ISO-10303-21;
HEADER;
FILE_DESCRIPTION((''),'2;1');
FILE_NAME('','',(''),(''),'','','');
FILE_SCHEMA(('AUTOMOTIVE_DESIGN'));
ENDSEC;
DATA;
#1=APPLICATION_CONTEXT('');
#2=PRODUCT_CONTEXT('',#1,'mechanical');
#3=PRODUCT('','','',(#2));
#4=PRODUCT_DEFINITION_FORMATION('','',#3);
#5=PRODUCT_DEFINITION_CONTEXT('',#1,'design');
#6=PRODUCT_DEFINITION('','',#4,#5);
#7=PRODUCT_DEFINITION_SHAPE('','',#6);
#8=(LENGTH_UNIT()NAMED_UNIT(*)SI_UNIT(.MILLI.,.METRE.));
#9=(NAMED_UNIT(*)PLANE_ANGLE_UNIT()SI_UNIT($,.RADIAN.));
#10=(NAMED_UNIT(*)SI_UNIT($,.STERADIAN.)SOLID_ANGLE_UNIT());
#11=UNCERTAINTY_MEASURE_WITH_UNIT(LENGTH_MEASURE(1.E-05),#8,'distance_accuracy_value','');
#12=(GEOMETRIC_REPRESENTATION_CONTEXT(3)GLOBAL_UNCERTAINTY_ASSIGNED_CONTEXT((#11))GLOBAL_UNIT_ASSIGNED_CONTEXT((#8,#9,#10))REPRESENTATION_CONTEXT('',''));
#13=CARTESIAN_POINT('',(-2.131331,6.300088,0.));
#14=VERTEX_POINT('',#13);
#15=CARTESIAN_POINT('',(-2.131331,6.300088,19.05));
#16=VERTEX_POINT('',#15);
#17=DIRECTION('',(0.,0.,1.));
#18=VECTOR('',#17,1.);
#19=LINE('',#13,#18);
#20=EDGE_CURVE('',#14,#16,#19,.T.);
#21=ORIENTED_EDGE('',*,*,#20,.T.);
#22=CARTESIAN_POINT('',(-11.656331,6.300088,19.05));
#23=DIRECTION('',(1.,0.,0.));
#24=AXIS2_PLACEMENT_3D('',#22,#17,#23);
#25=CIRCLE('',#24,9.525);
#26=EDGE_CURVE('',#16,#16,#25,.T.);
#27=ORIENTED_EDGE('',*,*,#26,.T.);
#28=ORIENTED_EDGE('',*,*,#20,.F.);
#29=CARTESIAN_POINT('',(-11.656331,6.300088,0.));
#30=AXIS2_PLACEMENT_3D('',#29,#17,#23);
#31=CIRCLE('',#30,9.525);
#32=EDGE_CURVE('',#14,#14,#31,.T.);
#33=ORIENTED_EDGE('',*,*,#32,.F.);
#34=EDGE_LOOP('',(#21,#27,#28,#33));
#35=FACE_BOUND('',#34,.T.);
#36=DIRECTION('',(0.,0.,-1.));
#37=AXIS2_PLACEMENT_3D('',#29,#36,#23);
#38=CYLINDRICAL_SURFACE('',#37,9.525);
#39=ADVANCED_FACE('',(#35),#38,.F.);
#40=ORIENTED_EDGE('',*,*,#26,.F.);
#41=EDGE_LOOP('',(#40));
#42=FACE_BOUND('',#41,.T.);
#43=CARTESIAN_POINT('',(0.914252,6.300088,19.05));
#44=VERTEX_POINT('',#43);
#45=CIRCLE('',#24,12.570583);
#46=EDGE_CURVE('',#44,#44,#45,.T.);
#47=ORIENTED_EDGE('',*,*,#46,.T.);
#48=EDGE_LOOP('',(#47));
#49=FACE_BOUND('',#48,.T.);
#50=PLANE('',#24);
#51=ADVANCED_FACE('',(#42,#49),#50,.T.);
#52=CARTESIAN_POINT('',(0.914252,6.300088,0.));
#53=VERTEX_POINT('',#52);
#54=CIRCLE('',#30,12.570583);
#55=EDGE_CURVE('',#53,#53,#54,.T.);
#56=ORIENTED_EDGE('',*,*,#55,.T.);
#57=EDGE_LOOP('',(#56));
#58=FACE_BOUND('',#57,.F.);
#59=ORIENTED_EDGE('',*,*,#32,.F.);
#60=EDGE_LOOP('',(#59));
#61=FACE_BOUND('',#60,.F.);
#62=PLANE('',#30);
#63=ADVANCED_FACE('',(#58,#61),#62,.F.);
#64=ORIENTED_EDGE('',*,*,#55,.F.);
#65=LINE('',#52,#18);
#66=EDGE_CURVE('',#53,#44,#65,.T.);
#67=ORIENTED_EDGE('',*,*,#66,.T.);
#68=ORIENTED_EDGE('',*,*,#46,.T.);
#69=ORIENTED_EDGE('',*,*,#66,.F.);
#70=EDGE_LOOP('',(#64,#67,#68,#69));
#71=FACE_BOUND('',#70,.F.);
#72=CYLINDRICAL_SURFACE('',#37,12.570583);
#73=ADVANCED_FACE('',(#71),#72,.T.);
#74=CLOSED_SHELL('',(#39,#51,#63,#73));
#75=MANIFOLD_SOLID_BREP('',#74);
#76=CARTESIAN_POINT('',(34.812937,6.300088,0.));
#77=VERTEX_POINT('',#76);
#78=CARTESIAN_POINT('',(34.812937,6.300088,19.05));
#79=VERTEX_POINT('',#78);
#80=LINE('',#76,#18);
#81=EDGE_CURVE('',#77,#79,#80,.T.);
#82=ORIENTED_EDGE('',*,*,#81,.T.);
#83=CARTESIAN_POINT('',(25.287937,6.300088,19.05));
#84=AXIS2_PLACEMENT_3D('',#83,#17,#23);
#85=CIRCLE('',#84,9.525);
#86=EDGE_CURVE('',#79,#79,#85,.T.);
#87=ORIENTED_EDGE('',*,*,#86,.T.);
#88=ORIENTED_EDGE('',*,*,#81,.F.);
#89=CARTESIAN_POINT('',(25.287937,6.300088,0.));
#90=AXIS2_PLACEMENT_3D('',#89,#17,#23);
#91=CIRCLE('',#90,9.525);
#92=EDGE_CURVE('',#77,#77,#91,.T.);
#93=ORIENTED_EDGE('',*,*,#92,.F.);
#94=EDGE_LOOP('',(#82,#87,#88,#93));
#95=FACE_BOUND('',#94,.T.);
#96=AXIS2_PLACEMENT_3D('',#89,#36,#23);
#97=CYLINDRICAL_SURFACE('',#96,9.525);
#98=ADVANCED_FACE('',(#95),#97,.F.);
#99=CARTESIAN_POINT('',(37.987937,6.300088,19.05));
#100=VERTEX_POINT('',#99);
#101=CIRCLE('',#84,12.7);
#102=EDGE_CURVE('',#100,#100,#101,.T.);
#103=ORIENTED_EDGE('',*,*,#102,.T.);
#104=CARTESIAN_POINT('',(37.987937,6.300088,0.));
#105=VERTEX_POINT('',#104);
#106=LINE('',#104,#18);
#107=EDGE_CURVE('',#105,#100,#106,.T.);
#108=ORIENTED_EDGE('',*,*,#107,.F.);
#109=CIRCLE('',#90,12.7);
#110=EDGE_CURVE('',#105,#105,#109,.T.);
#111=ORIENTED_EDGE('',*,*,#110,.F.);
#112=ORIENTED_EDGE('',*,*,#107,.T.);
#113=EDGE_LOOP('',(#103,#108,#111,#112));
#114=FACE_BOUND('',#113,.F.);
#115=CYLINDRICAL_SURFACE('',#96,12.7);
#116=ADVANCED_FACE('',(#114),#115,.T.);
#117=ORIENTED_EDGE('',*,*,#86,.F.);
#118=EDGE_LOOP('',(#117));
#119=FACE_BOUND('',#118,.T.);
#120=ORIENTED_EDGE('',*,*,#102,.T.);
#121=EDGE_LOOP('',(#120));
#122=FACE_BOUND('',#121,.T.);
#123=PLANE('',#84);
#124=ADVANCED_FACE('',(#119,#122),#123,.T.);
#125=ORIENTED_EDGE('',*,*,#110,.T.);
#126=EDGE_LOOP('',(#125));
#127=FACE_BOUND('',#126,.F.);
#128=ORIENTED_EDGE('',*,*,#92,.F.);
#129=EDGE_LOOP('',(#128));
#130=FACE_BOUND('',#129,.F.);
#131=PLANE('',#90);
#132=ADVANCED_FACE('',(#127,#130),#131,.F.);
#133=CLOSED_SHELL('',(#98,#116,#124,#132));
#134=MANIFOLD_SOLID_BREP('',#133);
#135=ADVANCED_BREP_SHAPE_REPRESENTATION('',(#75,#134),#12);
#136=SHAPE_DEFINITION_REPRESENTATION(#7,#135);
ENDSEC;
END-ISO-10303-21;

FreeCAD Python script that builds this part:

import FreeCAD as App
import Part
import Sketcher

V = App.Vector
Q = App.Units.Quantity

doc = App.newDocument("Part")
body = doc.addObject("PartDesign::Body", "Body")
body.AllowCompound = True

sketch1 = body.newObject("Sketcher::SketchObject", "Sketch")
sketch1.AttachmentSupport = (doc.getObject("XY_Plane"), [""])
sketch1.MapMode = "FlatFace"
sketch1.addGeometry(Part.Circle(V(25, 6, 0), V(0, 0, 1), 13), False)
sketch1.addGeometry(Part.Circle(V(25, 6, 0), V(0, 0, 1), 10), False)
sketch1.addGeometry(Part.Circle(V(-12, 6, 0), V(0, 0, 1), 13), False)
sketch1.addGeometry(Part.Circle(V(-12, 6, 0), V(0, 0, 1), 10), False)
sketch1.addConstraint(Sketcher.Constraint("Coincident", 1, 3, 0, 3))
sketch1.addConstraint(Sketcher.Constraint("Coincident", 3, 3, 2, 3))
sketch1.addConstraint(Sketcher.Constraint("Equal", 1, 3))
sketch1.addConstraint(Sketcher.Constraint("Horizontal", 1, 3, 2, 3))
sketch1.addConstraint(Sketcher.Constraint("Diameter", 0, Q("1 in")))
sketch1.addConstraint(Sketcher.Constraint("Diameter", 1, Q("0.75 in")))
sketch1.addConstraint(Sketcher.Constraint("Diameter", 2, Q("25.141166 mm")))
sketch1.addConstraint(Sketcher.Constraint("DistanceX", 2, 3, -1, 1, Q("11.656331 mm")))
sketch1.addConstraint(Sketcher.Constraint("DistanceX", -1, 1, 0, 3, Q("25.287937 mm")))
sketch1.addConstraint(Sketcher.Constraint("DistanceY", -1, 1, 0, 3, Q("6.300088 mm")))
pad1 = body.newObject("PartDesign::Pad", "Pad")
pad1.Profile = sketch1
pad1.Length = Q("0.75 in")

doc.recompute()
